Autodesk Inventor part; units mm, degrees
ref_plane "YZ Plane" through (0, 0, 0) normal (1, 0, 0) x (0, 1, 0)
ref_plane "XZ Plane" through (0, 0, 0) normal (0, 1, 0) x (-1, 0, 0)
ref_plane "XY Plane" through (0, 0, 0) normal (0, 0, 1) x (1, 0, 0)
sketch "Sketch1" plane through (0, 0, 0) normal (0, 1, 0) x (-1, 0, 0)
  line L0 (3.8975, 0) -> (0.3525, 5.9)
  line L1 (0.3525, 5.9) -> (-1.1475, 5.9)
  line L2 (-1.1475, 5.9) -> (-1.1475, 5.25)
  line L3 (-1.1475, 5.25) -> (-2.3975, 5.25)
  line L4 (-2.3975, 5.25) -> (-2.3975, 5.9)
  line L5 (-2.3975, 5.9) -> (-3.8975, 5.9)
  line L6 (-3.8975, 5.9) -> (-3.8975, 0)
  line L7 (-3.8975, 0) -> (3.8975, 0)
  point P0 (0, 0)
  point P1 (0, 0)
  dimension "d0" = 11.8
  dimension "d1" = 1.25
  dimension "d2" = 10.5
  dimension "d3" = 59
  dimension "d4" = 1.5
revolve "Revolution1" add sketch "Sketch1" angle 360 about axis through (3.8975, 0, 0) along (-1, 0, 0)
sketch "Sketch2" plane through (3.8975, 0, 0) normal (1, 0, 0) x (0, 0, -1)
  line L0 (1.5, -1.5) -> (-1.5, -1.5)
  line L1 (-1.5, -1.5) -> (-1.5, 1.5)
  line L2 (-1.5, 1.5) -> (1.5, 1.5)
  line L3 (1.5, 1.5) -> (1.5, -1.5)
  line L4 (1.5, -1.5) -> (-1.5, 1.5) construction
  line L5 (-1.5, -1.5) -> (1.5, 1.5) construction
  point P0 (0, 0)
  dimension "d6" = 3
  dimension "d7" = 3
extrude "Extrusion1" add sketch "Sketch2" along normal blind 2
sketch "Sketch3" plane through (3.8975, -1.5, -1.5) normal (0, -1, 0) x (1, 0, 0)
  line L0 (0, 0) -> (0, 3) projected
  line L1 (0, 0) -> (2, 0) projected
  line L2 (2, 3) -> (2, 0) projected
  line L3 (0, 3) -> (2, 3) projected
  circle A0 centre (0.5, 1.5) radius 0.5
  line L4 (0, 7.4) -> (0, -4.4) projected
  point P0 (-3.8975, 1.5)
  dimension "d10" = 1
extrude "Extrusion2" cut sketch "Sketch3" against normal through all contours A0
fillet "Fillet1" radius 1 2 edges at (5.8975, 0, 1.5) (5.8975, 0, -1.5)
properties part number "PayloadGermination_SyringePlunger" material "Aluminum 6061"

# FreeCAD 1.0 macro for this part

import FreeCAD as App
import Part
import Sketcher
Q = App.Units.Quantity


def edges_at(feature, points):
    """Names of the edges that pass closest to the given points."""
    edges = feature.Shape.Edges
    near = lambda p: min(range(len(edges)), key=lambda i: edges[i].distToShape(Part.Vertex(*p))[0])
    return sorted({f"Edge{near(p) + 1}" for p in points})

doc = App.newDocument("Part")
body = doc.addObject("PartDesign::Body", "Body")

sketch1 = doc.addObject("Sketcher::SketchObject", "Sketch")
body.addObject(sketch1)
sketch1.AttachmentSupport = (doc.XZ_Plane, [""])
sketch1.MapMode = "FlatFace"
sketch1.addGeometry(Part.LineSegment(App.Vector(3.9, 0, 0), App.Vector(-3.9, 0, 0)), False)
sketch1.addGeometry(Part.LineSegment(App.Vector(-3.9, 0, 0), App.Vector(-0.4, 5.9, 0)), False)
sketch1.addGeometry(Part.LineSegment(App.Vector(-0.4, 5.9, 0), App.Vector(1.1, 5.9, 0)), False)
sketch1.addGeometry(Part.LineSegment(App.Vector(1.1, 5.9, 0), App.Vector(1.1, 5.2, 0)), False)
sketch1.addGeometry(Part.LineSegment(App.Vector(1.1, 5.2, 0), App.Vector(2.4, 5.2, 0)), False)
sketch1.addGeometry(Part.LineSegment(App.Vector(2.4, 5.2, 0), App.Vector(2.4, 5.9, 0)), False)
sketch1.addGeometry(Part.LineSegment(App.Vector(2.4, 5.9, 0), App.Vector(3.9, 5.9, 0)), False)
sketch1.addGeometry(Part.LineSegment(App.Vector(3.9, 5.9, 0), App.Vector(3.9, 0, 0)), False)
sketch1.addConstraint(Sketcher.Constraint("Coincident", 0, 2, 1, 1))
sketch1.addConstraint(Sketcher.Constraint("Coincident", 1, 2, 2, 1))
sketch1.addConstraint(Sketcher.Constraint("Coincident", 2, 2, 3, 1))
sketch1.addConstraint(Sketcher.Constraint("Coincident", 3, 2, 4, 1))
sketch1.addConstraint(Sketcher.Constraint("Coincident", 4, 2, 5, 1))
sketch1.addConstraint(Sketcher.Constraint("Coincident", 5, 2, 6, 1))
sketch1.addConstraint(Sketcher.Constraint("Coincident", 6, 2, 7, 1))
sketch1.addConstraint(Sketcher.Constraint("Coincident", 7, 2, 0, 1))
sketch1.addConstraint(Sketcher.Constraint("Horizontal", 0))
sketch1.addConstraint(Sketcher.Constraint("Horizontal", 2))
sketch1.addConstraint(Sketcher.Constraint("Vertical", 3))
sketch1.addConstraint(Sketcher.Constraint("Horizontal", 4))
sketch1.addConstraint(Sketcher.Constraint("Vertical", 5))
sketch1.addConstraint(Sketcher.Constraint("Horizontal", 6))
sketch1.addConstraint(Sketcher.Constraint("Vertical", 7))
sketch1.addConstraint(Sketcher.Constraint("Symmetric", 0, 2, 7, 2, -1, 1))
sketch1.addConstraint(Sketcher.Constraint("Horizontal", 2, 2, 5, 2))
sketch1.addConstraint(Sketcher.Constraint("Equal", 2, 6))
sketch1.addConstraint(Sketcher.Constraint("Angle", 1, Q("59.0006 deg")))
sketch1.addConstraint(Sketcher.Constraint("DistanceX", 2, 1, 2, 2, Q("1.5 mm")))
sketch1.addConstraint(Sketcher.Constraint("DistanceX", 4, 1, 4, 2, Q("1.25 mm")))
sketch1.addConstraint(Sketcher.Constraint("DistanceY", 7, 2, 7, 1, Q("5.9 mm")))
sketch1.addConstraint(Sketcher.Constraint("DistanceY", 3, 2, 3, 1, Q("0.65 mm")))
revolution = doc.addObject("PartDesign::Revolution", "Revolution")
body.addObject(revolution)
revolution.Profile = sketch1
revolution.ReferenceAxis = (sketch1, ["H_Axis"])
revolution.Angle = 360

sketch2 = doc.addObject("Sketcher::SketchObject", "Sketch001")
body.addObject(sketch2)
sketch2.AttachmentSupport = (doc.YZ_Plane, [""])
sketch2.MapMode = "FlatFace"
sketch2.AttachmentOffset = App.Placement(App.Vector(0, 0, 3.8975), App.Rotation())
sketch2.addGeometry(Part.LineSegment(App.Vector(-1.5, 1.5, 0), App.Vector(-1.5, -1.5, 0)), False)
sketch2.addGeometry(Part.LineSegment(App.Vector(-1.5, -1.5, 0), App.Vector(1.5, -1.5, 0)), False)
sketch2.addGeometry(Part.LineSegment(App.Vector(1.5, -1.5, 0), App.Vector(1.5, 1.5, 0)), False)
sketch2.addGeometry(Part.LineSegment(App.Vector(1.5, 1.5, 0), App.Vector(-1.5, 1.5, 0)), False)
sketch2.addConstraint(Sketcher.Constraint("Coincident", 0, 2, 1, 1))
sketch2.addConstraint(Sketcher.Constraint("Coincident", 1, 2, 2, 1))
sketch2.addConstraint(Sketcher.Constraint("Coincident", 2, 2, 3, 1))
sketch2.addConstraint(Sketcher.Constraint("Coincident", 3, 2, 0, 1))
sketch2.addConstraint(Sketcher.Constraint("Vertical", 0))
sketch2.addConstraint(Sketcher.Constraint("Horizontal", 1))
sketch2.addConstraint(Sketcher.Constraint("Vertical", 2))
sketch2.addConstraint(Sketcher.Constraint("Horizontal", 3))
sketch2.addConstraint(Sketcher.Constraint("Symmetric", 0, 2, 2, 2, -1, 1))
sketch2.addConstraint(Sketcher.Constraint("Equal", 3, 0))
sketch2.addConstraint(Sketcher.Constraint("DistanceX", 1, 1, 1, 2, Q("3 mm")))
pad1 = doc.addObject("PartDesign::Pad", "Pad")
body.addObject(pad1)
pad1.Profile = sketch2
pad1.Length = 2

sketch3 = doc.addObject("Sketcher::SketchObject", "Sketch002")
body.addObject(sketch3)
sketch3.AttachmentSupport = (doc.XZ_Plane, [""])
sketch3.MapMode = "FlatFace"
sketch3.AttachmentOffset = App.Placement(App.Vector(0, 0, 1.5), App.Rotation())
sketch3.addGeometry(Part.Circle(App.Vector(4.4, 0, 0), App.Vector(0, 0, 1), 0.5), False)
sketch3.addConstraint(Sketcher.Constraint("PointOnObject", 0, 3, -1))
sketch3.addConstraint(Sketcher.Constraint("Diameter", 0, Q("1 mm")))
sketch3.addConstraint(Sketcher.Constraint("DistanceX", -1, 1, 0, 3, Q("4.3975 mm")))
pocket1 = doc.addObject("PartDesign::Pocket", "Pocket")
body.addObject(pocket1)
pocket1.Profile = sketch3
pocket1.Type = "ThroughAll"
doc.recompute()

fillet = doc.addObject("PartDesign::Fillet", "Fillet")
body.addObject(fillet)
fillet.Base = (pocket1, edges_at(pocket1, [(5.897, 0, 1.5), (5.897, 0, -1.5)]))
fillet.Radius = 1

doc.recompute()
